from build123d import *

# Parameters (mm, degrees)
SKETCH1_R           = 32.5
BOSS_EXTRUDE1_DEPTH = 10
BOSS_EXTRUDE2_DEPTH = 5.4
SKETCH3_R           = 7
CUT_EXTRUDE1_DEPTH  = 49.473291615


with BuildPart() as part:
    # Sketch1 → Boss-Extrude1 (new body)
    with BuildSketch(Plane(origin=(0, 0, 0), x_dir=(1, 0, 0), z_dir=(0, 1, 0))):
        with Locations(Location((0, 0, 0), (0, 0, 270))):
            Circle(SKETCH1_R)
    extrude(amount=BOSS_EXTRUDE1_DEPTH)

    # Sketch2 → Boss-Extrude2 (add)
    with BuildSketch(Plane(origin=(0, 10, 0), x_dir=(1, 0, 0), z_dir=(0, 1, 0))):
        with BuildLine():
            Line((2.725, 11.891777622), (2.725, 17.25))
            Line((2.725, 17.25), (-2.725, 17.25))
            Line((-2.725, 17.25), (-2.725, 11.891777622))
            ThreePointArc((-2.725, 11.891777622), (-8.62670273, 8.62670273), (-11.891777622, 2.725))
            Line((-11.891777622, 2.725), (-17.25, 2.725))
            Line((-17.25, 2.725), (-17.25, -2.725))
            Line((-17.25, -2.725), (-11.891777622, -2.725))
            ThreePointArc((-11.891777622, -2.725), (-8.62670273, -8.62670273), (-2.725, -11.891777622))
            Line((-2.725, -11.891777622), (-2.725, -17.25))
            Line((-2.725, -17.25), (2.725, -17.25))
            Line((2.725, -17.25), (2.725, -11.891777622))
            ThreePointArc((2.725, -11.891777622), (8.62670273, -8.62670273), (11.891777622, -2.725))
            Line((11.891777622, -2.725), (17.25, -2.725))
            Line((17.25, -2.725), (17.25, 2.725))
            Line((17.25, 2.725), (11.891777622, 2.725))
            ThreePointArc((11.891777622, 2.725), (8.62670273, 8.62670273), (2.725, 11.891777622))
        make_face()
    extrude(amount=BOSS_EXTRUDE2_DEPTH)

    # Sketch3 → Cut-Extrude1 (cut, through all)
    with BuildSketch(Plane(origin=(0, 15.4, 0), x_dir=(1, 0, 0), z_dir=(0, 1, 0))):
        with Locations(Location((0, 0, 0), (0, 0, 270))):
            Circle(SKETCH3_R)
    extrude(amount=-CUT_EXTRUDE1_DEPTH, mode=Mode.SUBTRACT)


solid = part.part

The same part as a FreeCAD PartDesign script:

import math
import FreeCAD as App
import Part
import Sketcher

V = App.Vector

doc = App.newDocument("Part")
body = doc.addObject("PartDesign::Body", "Body")

# Sketch on XZ plane
sketch1 = doc.addObject("Sketcher::SketchObject", "Sketch")
body.addObject(sketch1)
sketch1.AttachmentSupport = (doc.XZ_Plane, [""])
sketch1.MapMode = "FlatFace"
sketch1.addGeometry(Part.Circle(V(0, 0, 0), V(0, 0, 1), 32.5), False)
sketch1.addConstraint(Sketcher.Constraint("Coincident", 0, 3, -1, 1))
sketch1.addConstraint(Sketcher.Constraint("Diameter", 0, 65.0))
pad1 = doc.addObject("PartDesign::Pad", "Pad")
body.addObject(pad1)
pad1.Profile = sketch1
pad1.Length = 10
pad1.Reversed = True

# Sketch on XZ plane
sketch2 = doc.addObject("Sketcher::SketchObject", "Sketch001")
body.addObject(sketch2)
sketch2.AttachmentSupport = (doc.XZ_Plane, [""])
sketch2.MapMode = "FlatFace"
sketch2.AttachmentOffset = App.Placement(V(0, 0, -10), App.Rotation())
sketch2.addGeometry(Part.LineSegment(V(2.725, -11.891778, 0), V(2.725, -17.25, 0)), False)
sketch2.addGeometry(Part.LineSegment(V(2.725, -17.25, 0), V(-2.725, -17.25, 0)), False)
sketch2.addGeometry(Part.LineSegment(V(-2.725, -17.25, 0), V(-2.725, -11.891778, 0)), False)
sketch2.addGeometry(Part.ArcOfCircle(Part.Circle(V(0, 0, 0), V(0, 0, 1), 12.2), math.radians(-167.093502), math.radians(-102.906498)), False)
sketch2.addGeometry(Part.LineSegment(V(-11.891778, -2.725, 0), V(-17.25, -2.725, 0)), False)
sketch2.addGeometry(Part.LineSegment(V(-17.25, -2.725, 0), V(-17.25, 2.725, 0)), False)
sketch2.addGeometry(Part.LineSegment(V(-17.25, 2.725, 0), V(-11.891778, 2.725, 0)), False)
sketch2.addGeometry(Part.ArcOfCircle(Part.Circle(V(0, 0, 0), V(0, 0, 1), 12.2), math.radians(102.906498), math.radians(167.093502)), False)
sketch2.addGeometry(Part.LineSegment(V(-2.725, 11.891778, 0), V(-2.725, 17.25, 0)), False)
sketch2.addGeometry(Part.LineSegment(V(-2.725, 17.25, 0), V(2.725, 17.25, 0)), False)
sketch2.addGeometry(Part.LineSegment(V(2.725, 17.25, 0), V(2.725, 11.891778, 0)), False)
sketch2.addGeometry(Part.ArcOfCircle(Part.Circle(V(0, 0, 0), V(0, 0, 1), 12.2), math.radians(12.906498), math.radians(77.093502)), False)
sketch2.addGeometry(Part.LineSegment(V(11.891778, 2.725, 0), V(17.25, 2.725, 0)), False)
sketch2.addGeometry(Part.LineSegment(V(17.25, 2.725, 0), V(17.25, -2.725, 0)), False)
sketch2.addGeometry(Part.LineSegment(V(17.25, -2.725, 0), V(11.891778, -2.725, 0)), False)
sketch2.addGeometry(Part.ArcOfCircle(Part.Circle(V(0, 0, 0), V(0, 0, 1), 12.2), math.radians(-77.093502), math.radians(-12.906498)), False)
sketch2.addConstraint(Sketcher.Constraint("Coincident", 0, 2, 1, 1))
sketch2.addConstraint(Sketcher.Constraint("Coincident", 1, 2, 2, 1))
sketch2.addConstraint(Sketcher.Constraint("Coincident", 2, 2, 3, 2))
sketch2.addConstraint(Sketcher.Constraint("Coincident", 3, 1, 4, 1))
sketch2.addConstraint(Sketcher.Constraint("Coincident", 4, 2, 5, 1))
sketch2.addConstraint(Sketcher.Constraint("Coincident", 5, 2, 6, 1))
sketch2.addConstraint(Sketcher.Constraint("Coincident", 6, 2, 7, 2))
sketch2.addConstraint(Sketcher.Constraint("Coincident", 7, 1, 8, 1))
sketch2.addConstraint(Sketcher.Constraint("Coincident", 8, 2, 9, 1))
sketch2.addConstraint(Sketcher.Constraint("Coincident", 9, 2, 10, 1))
sketch2.addConstraint(Sketcher.Constraint("Coincident", 10, 2, 11, 2))
sketch2.addConstraint(Sketcher.Constraint("Coincident", 11, 1, 12, 1))
sketch2.addConstraint(Sketcher.Constraint("Coincident", 12, 2, 13, 1))
sketch2.addConstraint(Sketcher.Constraint("Coincident", 13, 2, 14, 1))
sketch2.addConstraint(Sketcher.Constraint("Coincident", 14, 2, 15, 2))
sketch2.addConstraint(Sketcher.Constraint("Coincident", 15, 1, 0, 1))
sketch2.addConstraint(Sketcher.Constraint("Vertical", 0))
sketch2.addConstraint(Sketcher.Constraint("Horizontal", 1))
sketch2.addConstraint(Sketcher.Constraint("Vertical", 2))
sketch2.addConstraint(Sketcher.Constraint("Horizontal", 4))
sketch2.addConstraint(Sketcher.Constraint("Vertical", 5))
sketch2.addConstraint(Sketcher.Constraint("Horizontal", 6))
sketch2.addConstraint(Sketcher.Constraint("Vertical", 8))
sketch2.addConstraint(Sketcher.Constraint("Horizontal", 9))
sketch2.addConstraint(Sketcher.Constraint("Vertical", 10))
sketch2.addConstraint(Sketcher.Constraint("Horizontal", 12))
sketch2.addConstraint(Sketcher.Constraint("Vertical", 13))
sketch2.addConstraint(Sketcher.Constraint("Horizontal", 14))
sketch2.addConstraint(Sketcher.Constraint("Coincident", 3, 3, -1, 1))
sketch2.addConstraint(Sketcher.Constraint("Coincident", 7, 3, -1, 1))
sketch2.addConstraint(Sketcher.Constraint("Coincident", 11, 3, -1, 1))
sketch2.addConstraint(Sketcher.Constraint("Coincident", 15, 3, -1, 1))
sketch2.addConstraint(Sketcher.Constraint("Equal", 3, 7))
sketch2.addConstraint(Sketcher.Constraint("Equal", 7, 11))
sketch2.addConstraint(Sketcher.Constraint("Equal", 11, 15))
sketch2.addConstraint(Sketcher.Constraint("Symmetric", 0, 2, 8, 2, -1, 1))
sketch2.addConstraint(Sketcher.Constraint("Symmetric", 4, 2, 12, 2, -1, 1))
sketch2.addConstraint(Sketcher.Constraint("Horizontal", 7, 1, 10, 2))
sketch2.addConstraint(Sketcher.Constraint("Horizontal", 6, 2, 11, 1))
sketch2.addConstraint(Sketcher.Constraint("Horizontal", 4, 2, 13, 2))
sketch2.addConstraint(Sketcher.Constraint("Horizontal", 2, 2, 15, 1))
sketch2.addConstraint(Sketcher.Constraint("Equal", 14, 0))
sketch2.addConstraint(Sketcher.Constraint("Equal", 9, 5))
sketch2.addConstraint(Sketcher.Constraint("Radius", 3, 12.2))
sketch2.addConstraint(Sketcher.Constraint("DistanceX", 1, 2, 1, 1, 5.45))
sketch2.addConstraint(Sketcher.Constraint("DistanceY", 0, 2, -1, 1, 17.25))
pad2 = doc.addObject("PartDesign::Pad", "Pad001")
body.addObject(pad2)
pad2.Profile = sketch2
pad2.Length = 5.4
pad2.Reversed = True

# Sketch on XZ plane
sketch3 = doc.addObject("Sketcher::SketchObject", "Sketch002")
body.addObject(sketch3)
sketch3.AttachmentSupport = (doc.XZ_Plane, [""])
sketch3.MapMode = "FlatFace"
sketch3.AttachmentOffset = App.Placement(V(0, 0, -15.4), App.Rotation())
sketch3.addGeometry(Part.Circle(V(0, 0, 0), V(0, 0, 1), 7), False)
sketch3.addConstraint(Sketcher.Constraint("Coincident", 0, 3, -1, 1))
sketch3.addConstraint(Sketcher.Constraint("Diameter", 0, 14.0))
pocket1 = doc.addObject("PartDesign::Pocket", "Pocket")
body.addObject(pocket1)
pocket1.Profile = sketch3
pocket1.Type = "ThroughAll"
pocket1.Reversed = True

doc.recompute()
